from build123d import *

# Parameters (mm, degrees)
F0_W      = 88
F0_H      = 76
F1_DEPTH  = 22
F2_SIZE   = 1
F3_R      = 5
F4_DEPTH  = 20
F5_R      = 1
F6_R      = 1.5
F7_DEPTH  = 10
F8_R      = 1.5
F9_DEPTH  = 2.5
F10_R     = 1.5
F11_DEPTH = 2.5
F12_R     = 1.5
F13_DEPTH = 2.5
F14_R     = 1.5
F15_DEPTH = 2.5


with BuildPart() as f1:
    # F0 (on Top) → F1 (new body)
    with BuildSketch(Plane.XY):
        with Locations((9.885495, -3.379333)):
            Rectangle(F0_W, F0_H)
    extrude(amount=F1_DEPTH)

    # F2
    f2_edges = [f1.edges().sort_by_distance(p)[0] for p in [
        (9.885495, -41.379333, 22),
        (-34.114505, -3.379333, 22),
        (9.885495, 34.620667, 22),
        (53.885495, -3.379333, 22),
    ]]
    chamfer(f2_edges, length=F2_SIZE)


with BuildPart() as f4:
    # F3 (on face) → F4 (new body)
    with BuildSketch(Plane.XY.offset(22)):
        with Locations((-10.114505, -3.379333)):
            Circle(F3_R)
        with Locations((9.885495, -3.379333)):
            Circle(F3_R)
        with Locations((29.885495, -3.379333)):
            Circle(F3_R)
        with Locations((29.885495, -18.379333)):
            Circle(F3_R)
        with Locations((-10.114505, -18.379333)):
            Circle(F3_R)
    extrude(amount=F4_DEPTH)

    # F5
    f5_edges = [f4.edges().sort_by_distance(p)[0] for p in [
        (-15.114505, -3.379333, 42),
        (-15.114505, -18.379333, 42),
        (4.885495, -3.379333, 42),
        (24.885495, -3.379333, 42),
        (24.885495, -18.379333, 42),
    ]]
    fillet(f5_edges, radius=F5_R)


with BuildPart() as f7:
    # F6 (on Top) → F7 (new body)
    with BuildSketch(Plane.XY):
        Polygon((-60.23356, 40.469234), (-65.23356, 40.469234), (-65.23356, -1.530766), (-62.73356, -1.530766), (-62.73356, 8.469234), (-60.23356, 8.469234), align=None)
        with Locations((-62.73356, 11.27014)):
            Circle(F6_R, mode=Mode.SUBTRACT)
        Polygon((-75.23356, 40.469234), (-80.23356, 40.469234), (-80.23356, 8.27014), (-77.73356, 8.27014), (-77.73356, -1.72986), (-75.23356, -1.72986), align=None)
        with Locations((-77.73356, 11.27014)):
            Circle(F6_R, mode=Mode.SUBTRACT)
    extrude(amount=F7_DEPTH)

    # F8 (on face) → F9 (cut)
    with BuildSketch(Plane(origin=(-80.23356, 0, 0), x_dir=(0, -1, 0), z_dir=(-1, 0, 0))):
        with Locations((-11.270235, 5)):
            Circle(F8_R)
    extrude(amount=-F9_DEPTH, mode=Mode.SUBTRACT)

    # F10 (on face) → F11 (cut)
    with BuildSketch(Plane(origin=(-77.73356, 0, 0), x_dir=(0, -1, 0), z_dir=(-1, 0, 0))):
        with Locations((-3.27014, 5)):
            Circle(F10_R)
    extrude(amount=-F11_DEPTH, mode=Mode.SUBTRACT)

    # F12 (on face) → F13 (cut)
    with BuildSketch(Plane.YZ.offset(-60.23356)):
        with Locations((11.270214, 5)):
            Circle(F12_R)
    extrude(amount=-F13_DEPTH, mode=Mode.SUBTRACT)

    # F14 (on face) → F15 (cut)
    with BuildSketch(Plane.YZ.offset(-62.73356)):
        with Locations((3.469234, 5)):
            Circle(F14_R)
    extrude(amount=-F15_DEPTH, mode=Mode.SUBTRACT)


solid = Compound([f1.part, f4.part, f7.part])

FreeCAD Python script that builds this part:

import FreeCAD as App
import Part
import Sketcher

V = App.Vector


def edges_at(feature, points):
    """Names of the edges that pass closest to the given points."""
    edges = feature.Shape.Edges
    near = lambda p: min(range(len(edges)), key=lambda i: edges[i].distToShape(Part.Vertex(*p))[0])
    return sorted({f"Edge{near(p) + 1}" for p in points})


def add_polygon(sketch, points):
    """Adds a closed chain of lines whose ends are joined by coincident constraints."""
    first, n = sketch.GeometryCount, len(points)
    for a, b in zip(points, points[1:] + points[:1]):
        sketch.addGeometry(Part.LineSegment(App.Vector(*a, 0), App.Vector(*b, 0)), False)
    for i in range(n):
        sketch.addConstraint(Sketcher.Constraint("Coincident", first + i, 2, first + (i + 1) % n, 1))

doc = App.newDocument("Part")
body = doc.addObject("PartDesign::Body", "Body")

# Sketch on XY plane
sketch1 = body.newObject("Sketcher::SketchObject", "Sketch")
sketch1.AttachmentSupport = (doc.getObject("XY_Plane"), [""])
sketch1.MapMode = "FlatFace"
add_polygon(sketch1, [(-34, 35), (-34, -41), (54, -41), (54, 35)])  # lines 0-3
sketch1.addConstraint([
    Sketcher.Constraint("Vertical", 0),
    Sketcher.Constraint("Horizontal", 1),
    Sketcher.Constraint("Vertical", 2),
    Sketcher.Constraint("Horizontal", 3),
    Sketcher.Constraint("DistanceX", 1, 1, 1, 2, 88.0),
    Sketcher.Constraint("DistanceY", 0, 2, 0, 1, 76.0),
    Sketcher.Constraint("DistanceX", 0, 2, -1, 1, 34.114505),
    Sketcher.Constraint("DistanceY", 0, 2, -1, 1, 41.379333),
])
pad1 = body.newObject("PartDesign::Pad", "Pad")
pad1.Profile = sketch1
pad1.Length = 22
doc.recompute()

chamfer = body.newObject("PartDesign::Chamfer", "Chamfer")
chamfer.Base = (pad1, edges_at(pad1, [
    (9.885, -41.379, 22),
    (-34.115, -3.379, 22),
    (9.885, 34.621, 22),
    (53.885, -3.379, 22),
]))
chamfer.Size = 1
body2 = doc.addObject("PartDesign::Body", "Body001")
body2.AllowCompound = True

# Sketch on XY plane
sketch2 = body2.newObject("Sketcher::SketchObject", "Sketch001")
sketch2.AttachmentSupport = (doc.getObject("XY_Plane001"), [""])
sketch2.MapMode = "FlatFace"
sketch2.AttachmentOffset = App.Placement(V(0, 0, 22), App.Rotation())
sketch2.addGeometry([
    Part.Circle(V(-10, -3, 0), V(0, 0, 1), 5),  # 0
    Part.Circle(V(10, -3, 0), V(0, 0, 1), 5),  # 1
    Part.Circle(V(30, -3, 0), V(0, 0, 1), 5),  # 2
    Part.Circle(V(30, -18, 0), V(0, 0, 1), 5),  # 3
    Part.Circle(V(-10, -18, 0), V(0, 0, 1), 5),  # 4
], False)
sketch2.addConstraint([
    Sketcher.Constraint("Equal", 0, 1),
    Sketcher.Constraint("Equal", 1, 2),
    Sketcher.Constraint("Equal", 2, 3),
    Sketcher.Constraint("Equal", 3, 4),
    Sketcher.Constraint("Horizontal", 0, 3, 1, 3),
    Sketcher.Constraint("Horizontal", 1, 3, 2, 3),
    Sketcher.Constraint("Horizontal", 3, 3, 4, 3),
    Sketcher.Constraint("Vertical", 2, 3, 3, 3),
    Sketcher.Constraint("Vertical", 0, 3, 4, 3),
    Sketcher.Constraint("Diameter", 0, 10.0),
    Sketcher.Constraint("DistanceX", 0, 3, 1, 3, 20.0),
    Sketcher.Constraint("DistanceX", 1, 3, 2, 3, 20.0),
    Sketcher.Constraint("DistanceY", 3, 3, 2, 3, 15.0),
    Sketcher.Constraint("DistanceX", 0, 3, -1, 1, 10.114505),
    Sketcher.Constraint("DistanceY", 0, 3, -1, 1, 3.379333),
])
pad2 = body2.newObject("PartDesign::Pad", "Pad001")
pad2.Profile = sketch2
pad2.Length = 20
doc.recompute()

fillet = body2.newObject("PartDesign::Fillet", "Fillet")
fillet.Base = (pad2, edges_at(pad2, [
    (-15.115, -3.379, 42),
    (-15.115, -18.379, 42),
    (4.885, -3.379, 42),
    (24.885, -3.379, 42),
    (24.885, -18.379, 42),
]))
fillet.Radius = 1
body3 = doc.addObject("PartDesign::Body", "Body002")
body3.AllowCompound = True

# Sketch on XY plane
sketch3 = body3.newObject("Sketcher::SketchObject", "Sketch002")
sketch3.AttachmentSupport = (doc.getObject("XY_Plane002"), [""])
sketch3.MapMode = "FlatFace"
add_polygon(sketch3, [(-60.2, 40.5), (-65.2, 40.5), (-65.2, -1.5), (-62.7, -1.5), (-62.7, 8.5), (-60.2, 8.5)])  # lines 0-5
sketch3.addGeometry(Part.Circle(V(-62.7, 11.3, 0), V(0, 0, 1), 1.5), False)  # 6
add_polygon(sketch3, [(-75.2, 40.5), (-80.2, 40.5), (-80.2, 8.3), (-77.7, 8.3), (-77.7, -1.7), (-75.2, -1.7)])  # lines 7-12
sketch3.addGeometry(Part.Circle(V(-77.7, 11.3, 0), V(0, 0, 1), 1.5), False)  # 13
sketch3.addConstraint([
    Sketcher.Constraint("Horizontal", 0),
    Sketcher.Constraint("Vertical", 1),
    Sketcher.Constraint("Horizontal", 2),
    Sketcher.Constraint("Vertical", 3),
    Sketcher.Constraint("Horizontal", 4),
    Sketcher.Constraint("Vertical", 5),
    Sketcher.Constraint("Horizontal", 7),
    Sketcher.Constraint("Vertical", 8),
    Sketcher.Constraint("Horizontal", 9),
    Sketcher.Constraint("Vertical", 10),
    Sketcher.Constraint("Horizontal", 11),
    Sketcher.Constraint("Vertical", 12),
    Sketcher.Constraint("Equal", 6, 13),
    Sketcher.Constraint("Horizontal", 6, 3, 13, 3),
    Sketcher.Constraint("Horizontal", 5, 2, 7, 2),
    Sketcher.Constraint("Vertical", 6, 3, 2, 2),
    Sketcher.Constraint("Vertical", 13, 3, 9, 2),
    Sketcher.Constraint("Equal", 2, 4),
    Sketcher.Constraint("Equal", 0, 7),
    Sketcher.Constraint("Equal", 4, 9),
    Sketcher.Constraint("Equal", 3, 10),
    Sketcher.Constraint("Diameter", 6, 3.0),
    Sketcher.Constraint("DistanceX", 0, 2, 0, 1, 5.0),
    Sketcher.Constraint("DistanceY", 1, 2, 1, 1, 42.0),
    Sketcher.Constraint("DistanceY", 3, 1, 3, 2, 10.0),
    Sketcher.Constraint("DistanceX", 13, 3, 6, 3, 15.0),
    Sketcher.Constraint("DistanceY", 8, 2, 13, 3, 3.0),
    Sketcher.Constraint("DistanceY", 8, 2, 8, 1, 32.199094),
    Sketcher.Constraint("DistanceX", 6, 3, -1, 1, 62.73356),
    Sketcher.Constraint("DistanceY", -1, 1, 6, 3, 11.27014),
])
pad3 = body3.newObject("PartDesign::Pad", "Pad002")
pad3.Profile = sketch3
pad3.Length = 10

# Sketch on YZ plane
sketch4 = body3.newObject("Sketcher::SketchObject", "Sketch003")
sketch4.AttachmentSupport = (doc.getObject("YZ_Plane002"), [""])
sketch4.MapMode = "FlatFace"
sketch4.AttachmentOffset = App.Placement(V(0, 0, -80.23356), App.Rotation())
sketch4.addGeometry(Part.Circle(V(11.3, 5, 0), V(0, 0, 1), 1.5), False)
sketch4.addConstraint([
    Sketcher.Constraint("Diameter", 0, 3.0),
    Sketcher.Constraint("DistanceY", -1, 1, 0, 3, 5.0),
    Sketcher.Constraint("DistanceX", -1, 1, 0, 3, 11.270235),
])
pocket1 = body3.newObject("PartDesign::Pocket", "Pocket")
pocket1.Profile = sketch4
pocket1.Length = 2.5
pocket1.Reversed = True

# Sketch on YZ plane
sketch5 = body3.newObject("Sketcher::SketchObject", "Sketch004")
sketch5.AttachmentSupport = (doc.getObject("YZ_Plane002"), [""])
sketch5.MapMode = "FlatFace"
sketch5.AttachmentOffset = App.Placement(V(0, 0, -77.73356), App.Rotation())
sketch5.addGeometry(Part.Circle(V(3.3, 5, 0), V(0, 0, 1), 1.5), False)
sketch5.addConstraint([
    Sketcher.Constraint("Diameter", 0, 3.0),
    Sketcher.Constraint("DistanceY", -1, 1, 0, 3, 5.0),
    Sketcher.Constraint("DistanceX", -1, 1, 0, 3, 3.27014),
])
pocket2 = body3.newObject("PartDesign::Pocket", "Pocket001")
pocket2.Profile = sketch5
pocket2.Length = 2.5
pocket2.Reversed = True

# Sketch on YZ plane
sketch6 = body3.newObject("Sketcher::SketchObject", "Sketch005")
sketch6.AttachmentSupport = (doc.getObject("YZ_Plane002"), [""])
sketch6.MapMode = "FlatFace"
sketch6.AttachmentOffset = App.Placement(V(0, 0, -60.23356), App.Rotation())
sketch6.addGeometry(Part.Circle(V(11.3, 5, 0), V(0, 0, 1), 1.5), False)
sketch6.addConstraint([
    Sketcher.Constraint("Diameter", 0, 3.0),
    Sketcher.Constraint("DistanceY", -1, 1, 0, 3, 5.0),
    Sketcher.Constraint("DistanceX", -1, 1, 0, 3, 11.270214),
])
pocket3 = body3.newObject("PartDesign::Pocket", "Pocket002")
pocket3.Profile = sketch6
pocket3.Length = 2.5

# Sketch on YZ plane
sketch7 = body3.newObject("Sketcher::SketchObject", "Sketch006")
sketch7.AttachmentSupport = (doc.getObject("YZ_Plane002"), [""])
sketch7.MapMode = "FlatFace"
sketch7.AttachmentOffset = App.Placement(V(0, 0, -62.73356), App.Rotation())
sketch7.addGeometry(Part.Circle(V(3.5, 5, 0), V(0, 0, 1), 1.5), False)
sketch7.addConstraint([
    Sketcher.Constraint("Diameter", 0, 3.0),
    Sketcher.Constraint("DistanceY", -1, 1, 0, 3, 5.0),
    Sketcher.Constraint("DistanceX", -1, 1, 0, 3, 3.469234),
])
pocket4 = body3.newObject("PartDesign::Pocket", "Pocket003")
pocket4.Profile = sketch7
pocket4.Length = 2.5

doc.recompute()
